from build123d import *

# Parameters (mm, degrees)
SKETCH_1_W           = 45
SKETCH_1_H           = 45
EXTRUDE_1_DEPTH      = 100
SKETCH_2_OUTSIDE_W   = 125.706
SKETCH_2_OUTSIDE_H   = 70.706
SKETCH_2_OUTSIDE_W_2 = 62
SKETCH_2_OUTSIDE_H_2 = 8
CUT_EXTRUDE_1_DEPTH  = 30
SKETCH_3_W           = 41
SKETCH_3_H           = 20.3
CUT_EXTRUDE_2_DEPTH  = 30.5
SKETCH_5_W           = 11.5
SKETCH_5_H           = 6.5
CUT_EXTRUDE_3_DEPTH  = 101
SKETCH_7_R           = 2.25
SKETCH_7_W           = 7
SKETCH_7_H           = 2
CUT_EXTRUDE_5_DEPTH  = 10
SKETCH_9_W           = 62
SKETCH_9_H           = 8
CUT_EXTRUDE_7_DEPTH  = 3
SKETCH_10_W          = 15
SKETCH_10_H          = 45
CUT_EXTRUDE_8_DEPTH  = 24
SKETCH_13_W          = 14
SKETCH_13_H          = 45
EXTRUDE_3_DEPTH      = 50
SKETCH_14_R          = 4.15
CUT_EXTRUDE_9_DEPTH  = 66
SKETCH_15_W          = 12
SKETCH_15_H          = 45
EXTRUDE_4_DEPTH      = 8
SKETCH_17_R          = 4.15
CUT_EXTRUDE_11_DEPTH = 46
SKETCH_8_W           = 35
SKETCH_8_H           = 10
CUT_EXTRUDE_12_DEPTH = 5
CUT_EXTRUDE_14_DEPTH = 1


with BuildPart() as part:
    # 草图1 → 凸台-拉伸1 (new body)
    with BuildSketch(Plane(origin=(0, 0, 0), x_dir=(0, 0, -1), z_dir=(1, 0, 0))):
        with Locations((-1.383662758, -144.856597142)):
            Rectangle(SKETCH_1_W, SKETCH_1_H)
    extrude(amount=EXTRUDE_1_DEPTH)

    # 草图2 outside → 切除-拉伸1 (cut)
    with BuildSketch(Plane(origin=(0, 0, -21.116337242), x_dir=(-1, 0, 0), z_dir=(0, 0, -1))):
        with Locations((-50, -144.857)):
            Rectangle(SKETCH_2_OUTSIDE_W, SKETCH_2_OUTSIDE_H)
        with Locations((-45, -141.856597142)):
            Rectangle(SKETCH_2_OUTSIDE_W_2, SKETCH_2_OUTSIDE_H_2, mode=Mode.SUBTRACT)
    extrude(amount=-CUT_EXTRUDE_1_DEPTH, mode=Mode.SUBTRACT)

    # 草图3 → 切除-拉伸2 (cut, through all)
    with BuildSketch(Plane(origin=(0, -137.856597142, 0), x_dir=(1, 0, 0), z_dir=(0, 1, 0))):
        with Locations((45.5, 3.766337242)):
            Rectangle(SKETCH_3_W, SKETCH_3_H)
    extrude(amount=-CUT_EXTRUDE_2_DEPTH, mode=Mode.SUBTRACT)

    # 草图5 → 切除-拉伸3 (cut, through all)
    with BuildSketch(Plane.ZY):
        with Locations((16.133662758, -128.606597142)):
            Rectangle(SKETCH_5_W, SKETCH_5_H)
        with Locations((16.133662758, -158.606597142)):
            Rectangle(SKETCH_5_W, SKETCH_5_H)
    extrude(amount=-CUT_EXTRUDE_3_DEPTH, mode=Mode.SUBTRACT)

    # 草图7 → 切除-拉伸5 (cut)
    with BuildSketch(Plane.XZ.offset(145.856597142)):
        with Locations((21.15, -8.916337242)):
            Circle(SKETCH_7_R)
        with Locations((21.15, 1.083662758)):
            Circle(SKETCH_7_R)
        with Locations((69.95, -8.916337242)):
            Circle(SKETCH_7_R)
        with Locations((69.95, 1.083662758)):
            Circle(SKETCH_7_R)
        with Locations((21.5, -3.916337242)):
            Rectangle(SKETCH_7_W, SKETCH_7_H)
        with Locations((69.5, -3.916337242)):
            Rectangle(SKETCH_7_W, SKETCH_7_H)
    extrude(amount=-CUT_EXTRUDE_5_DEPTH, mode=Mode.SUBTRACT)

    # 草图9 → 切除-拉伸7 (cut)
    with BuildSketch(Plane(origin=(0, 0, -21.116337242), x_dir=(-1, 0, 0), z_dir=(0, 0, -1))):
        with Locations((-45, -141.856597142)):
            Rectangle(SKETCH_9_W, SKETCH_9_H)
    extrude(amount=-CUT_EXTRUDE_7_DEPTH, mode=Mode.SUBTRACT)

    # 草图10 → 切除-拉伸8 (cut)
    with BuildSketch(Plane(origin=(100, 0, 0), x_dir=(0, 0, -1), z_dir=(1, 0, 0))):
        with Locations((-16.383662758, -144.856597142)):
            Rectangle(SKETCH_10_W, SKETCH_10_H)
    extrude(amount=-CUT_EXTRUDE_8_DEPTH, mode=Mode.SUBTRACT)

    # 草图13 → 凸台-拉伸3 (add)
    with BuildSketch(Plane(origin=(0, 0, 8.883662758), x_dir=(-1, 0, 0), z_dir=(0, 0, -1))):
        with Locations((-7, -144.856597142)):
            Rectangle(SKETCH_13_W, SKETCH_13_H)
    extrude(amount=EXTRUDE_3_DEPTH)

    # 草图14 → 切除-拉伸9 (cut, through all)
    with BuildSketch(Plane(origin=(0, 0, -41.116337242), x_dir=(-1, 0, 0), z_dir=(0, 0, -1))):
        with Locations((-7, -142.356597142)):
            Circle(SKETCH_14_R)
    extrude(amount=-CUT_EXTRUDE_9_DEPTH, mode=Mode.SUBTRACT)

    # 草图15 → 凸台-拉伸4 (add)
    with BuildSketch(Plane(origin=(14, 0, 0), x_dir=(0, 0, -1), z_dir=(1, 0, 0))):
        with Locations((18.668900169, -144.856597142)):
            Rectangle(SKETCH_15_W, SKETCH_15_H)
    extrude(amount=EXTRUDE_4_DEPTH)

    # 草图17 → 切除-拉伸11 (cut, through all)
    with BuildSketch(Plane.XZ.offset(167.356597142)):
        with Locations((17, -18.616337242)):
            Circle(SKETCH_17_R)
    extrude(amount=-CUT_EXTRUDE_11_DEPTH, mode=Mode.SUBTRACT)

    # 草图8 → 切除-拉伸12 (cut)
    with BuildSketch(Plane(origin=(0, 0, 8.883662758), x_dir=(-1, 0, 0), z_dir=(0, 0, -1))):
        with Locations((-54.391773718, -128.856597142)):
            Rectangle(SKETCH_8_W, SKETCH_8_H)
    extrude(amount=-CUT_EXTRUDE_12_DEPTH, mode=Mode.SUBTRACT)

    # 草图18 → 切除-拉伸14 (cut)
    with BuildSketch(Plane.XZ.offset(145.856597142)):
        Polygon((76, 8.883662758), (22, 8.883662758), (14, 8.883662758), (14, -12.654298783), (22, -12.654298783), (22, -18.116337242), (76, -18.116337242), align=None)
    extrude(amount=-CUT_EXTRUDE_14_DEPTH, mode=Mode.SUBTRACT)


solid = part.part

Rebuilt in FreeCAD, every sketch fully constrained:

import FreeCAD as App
import Part
import Sketcher

doc = App.newDocument("Part")
params = doc.addObject("Spreadsheet::Sheet", "Params")
for row, (alias, value) in enumerate([
    ("sketch1_width", "45 mm"),
    ("pad1_length", "100 mm"),
    ("sketch2_width", "62 mm"),
    ("sketch2_height", "8 mm"),
    ("pocket1_length", "30 mm"),
    ("sketch3_width", "41 mm"),
    ("sketch3_height", "20.3 mm"),
    ("sketch4_width", "6.5 mm"),
    ("sketch4_height", "11.5 mm"),
    ("sketch5_diameter", "4.5 mm"),
    ("sketch5_width", "7 mm"),
    ("sketch5_height", "2 mm"),
    ("pocket4_length", "10 mm"),
    ("sketch6_width", "62 mm"),
    ("sketch6_height", "8 mm"),
    ("pocket5_length", "3 mm"),
    ("sketch7_width", "45 mm"),
    ("sketch7_height", "15 mm"),
    ("pocket6_length", "24 mm"),
    ("sketch8_width", "14 mm"),
    ("sketch8_height", "45 mm"),
    ("pad2_length", "50 mm"),
    ("sketch9_diameter", "8.3 mm"),
    ("sketch10_width", "45 mm"),
    ("sketch10_height", "12 mm"),
    ("pad3_length", "8 mm"),
    ("sketch11_diameter", "8.3 mm"),
    ("sketch12_width", "35 mm"),
    ("sketch12_height", "10 mm"),
    ("pocket9_length", "5 mm"),
    ("sketch13_width", "62 mm"),
    ("sketch13_width2", "8 mm"),
    ("sketch13_height", "27 mm"),
    ("pocket10_length", "1 mm"),
], start=1):
    params.set(f"A{row}", alias)
    params.set(f"B{row}", "=" + value)
    params.setAlias(f"B{row}", alias)

body = doc.addObject("PartDesign::Body", "Body")

sketch1 = doc.addObject("Sketcher::SketchObject", "Sketch")
body.addObject(sketch1)
sketch1.AttachmentSupport = (doc.YZ_Plane, [""])
sketch1.MapMode = "FlatFace"
sketch1.addGeometry([
    Part.LineSegment(App.Vector(-122, 24, 0), App.Vector(-167, 24, 0)),
    Part.LineSegment(App.Vector(-167, 24, 0), App.Vector(-167, -21, 0)),
    Part.LineSegment(App.Vector(-167, -21, 0), App.Vector(-122, -21, 0)),
    Part.LineSegment(App.Vector(-122, -21, 0), App.Vector(-122, 24, 0)),
], False)
sketch1.addConstraint([
    Sketcher.Constraint("Coincident", 0, 2, 1, 1),
    Sketcher.Constraint("Coincident", 1, 2, 2, 1),
    Sketcher.Constraint("Coincident", 2, 2, 3, 1),
    Sketcher.Constraint("Coincident", 3, 2, 0, 1),
    Sketcher.Constraint("Horizontal", 0),
    Sketcher.Constraint("Vertical", 1),
    Sketcher.Constraint("Horizontal", 2),
    Sketcher.Constraint("Vertical", 3),
    Sketcher.Constraint("Equal", 2, 1),
    Sketcher.Constraint("DistanceX", 0, 2, 0, 1, 45.0),
    Sketcher.Constraint("DistanceX", 0, 2, -1, 1, 167.356597),
    Sketcher.Constraint("DistanceY", -1, 1, 0, 2, 23.883663),
])
sketch1.setExpression("Constraints[9]", "Params.sketch1_width")
pad1 = doc.addObject("PartDesign::Pad", "Pad")
body.addObject(pad1)
pad1.Profile = sketch1
pad1.setExpression("Length", "Params.pad1_length")

sketch2 = doc.addObject("Sketcher::SketchObject", "Sketch001")
body.addObject(sketch2)
sketch2.AttachmentSupport = (doc.XY_Plane, [""])
sketch2.MapMode = "FlatFace"
sketch2.AttachmentOffset = App.Placement(App.Vector(0, 0, -21.116337), App.Rotation())
sketch2.addGeometry([
    Part.LineSegment(App.Vector(113, -110, 0), App.Vector(113, -180, 0)),
    Part.LineSegment(App.Vector(113, -180, 0), App.Vector(-13, -180, 0)),
    Part.LineSegment(App.Vector(-13, -180, 0), App.Vector(-13, -110, 0)),
    Part.LineSegment(App.Vector(-13, -110, 0), App.Vector(113, -110, 0)),
    Part.LineSegment(App.Vector(14, -146, 0), App.Vector(76, -146, 0)),
    Part.LineSegment(App.Vector(76, -146, 0), App.Vector(76, -138, 0)),
    Part.LineSegment(App.Vector(76, -138, 0), App.Vector(14, -138, 0)),
    Part.LineSegment(App.Vector(14, -138, 0), App.Vector(14, -146, 0)),
], False)
sketch2.addConstraint([
    Sketcher.Constraint("Coincident", 0, 2, 1, 1),
    Sketcher.Constraint("Coincident", 1, 2, 2, 1),
    Sketcher.Constraint("Coincident", 2, 2, 3, 1),
    Sketcher.Constraint("Coincident", 3, 2, 0, 1),
    Sketcher.Constraint("Coincident", 4, 2, 5, 1),
    Sketcher.Constraint("Coincident", 5, 2, 6, 1),
    Sketcher.Constraint("Coincident", 6, 2, 7, 1),
    Sketcher.Constraint("Coincident", 7, 2, 4, 1),
    Sketcher.Constraint("Vertical", 0),
    Sketcher.Constraint("Horizontal", 1),
    Sketcher.Constraint("Vertical", 2),
    Sketcher.Constraint("Horizontal", 3),
    Sketcher.Constraint("Horizontal", 4),
    Sketcher.Constraint("Vertical", 5),
    Sketcher.Constraint("Horizontal", 6),
    Sketcher.Constraint("Vertical", 7),
    Sketcher.Constraint("DistanceX", 4, 1, 4, 2, 62.0),
    Sketcher.Constraint("DistanceY", 5, 1, 5, 2, 8.0),
    Sketcher.Constraint("DistanceX", -1, 1, 4, 2, 76.0),
    Sketcher.Constraint("DistanceX", 1, 2, 1, 1, 125.706),
    Sketcher.Constraint("DistanceY", 0, 2, 0, 1, 70.706),
    Sketcher.Constraint("DistanceY", 0, 2, -1, 1, 180.21),
    Sketcher.Constraint("DistanceX", -1, 1, 0, 2, 112.853),
    Sketcher.Constraint("DistanceY", 4, 2, -1, 1, 145.856597),
])
sketch2.setExpression("Constraints[16]", "Params.sketch2_width")
sketch2.setExpression("Constraints[17]", "Params.sketch2_height")
pocket1 = doc.addObject("PartDesign::Pocket", "Pocket")
body.addObject(pocket1)
pocket1.Profile = sketch2
pocket1.setExpression("Length", "Params.pocket1_length")
pocket1.Reversed = True

sketch3 = doc.addObject("Sketcher::SketchObject", "Sketch002")
body.addObject(sketch3)
sketch3.AttachmentSupport = (doc.XZ_Plane, [""])
sketch3.MapMode = "FlatFace"
sketch3.AttachmentOffset = App.Placement(App.Vector(0, 0, 137.856597), App.Rotation())
sketch3.addGeometry([
    Part.LineSegment(App.Vector(25, -14, 0), App.Vector(25, 6, 0)),
    Part.LineSegment(App.Vector(25, 6, 0), App.Vector(66, 6, 0)),
    Part.LineSegment(App.Vector(66, 6, 0), App.Vector(66, -14, 0)),
    Part.LineSegment(App.Vector(66, -14, 0), App.Vector(25, -14, 0)),
], False)
sketch3.addConstraint([
    Sketcher.Constraint("Coincident", 0, 2, 1, 1),
    Sketcher.Constraint("Coincident", 1, 2, 2, 1),
    Sketcher.Constraint("Coincident", 2, 2, 3, 1),
    Sketcher.Constraint("Coincident", 3, 2, 0, 1),
    Sketcher.Constraint("Vertical", 0),
    Sketcher.Constraint("Horizontal", 1),
    Sketcher.Constraint("Vertical", 2),
    Sketcher.Constraint("Horizontal", 3),
    Sketcher.Constraint("DistanceX", 1, 1, 1, 2, 41.0),
    Sketcher.Constraint("DistanceY", 0, 1, 0, 2, 20.3),
    Sketcher.Constraint("DistanceX", -1, 1, 0, 2, 25.0),
    Sketcher.Constraint("DistanceY", -1, 1, 0, 2, 6.383663),
])
sketch3.setExpression("Constraints[8]", "Params.sketch3_width")
sketch3.setExpression("Constraints[9]", "Params.sketch3_height")
pocket2 = doc.addObject("PartDesign::Pocket", "Pocket001")
body.addObject(pocket2)
pocket2.Profile = sketch3
pocket2.Type = "ThroughAll"
pocket2.Reversed = True

sketch4 = doc.addObject("Sketcher::SketchObject", "Sketch003")
body.addObject(sketch4)
sketch4.AttachmentSupport = (doc.YZ_Plane, [""])
sketch4.MapMode = "FlatFace"
sketch4.addGeometry([
    Part.LineSegment(App.Vector(-125, 10, 0), App.Vector(-132, 10, 0)),
    Part.LineSegment(App.Vector(-132, 10, 0), App.Vector(-132, 22, 0)),
    Part.LineSegment(App.Vector(-132, 22, 0), App.Vector(-125, 22, 0)),
    Part.LineSegment(App.Vector(-125, 22, 0), App.Vector(-125, 10, 0)),
    Part.LineSegment(App.Vector(-155, 10, 0), App.Vector(-162, 10, 0)),
    Part.LineSegment(App.Vector(-162, 10, 0), App.Vector(-162, 22, 0)),
    Part.LineSegment(App.Vector(-162, 22, 0), App.Vector(-155, 22, 0)),
    Part.LineSegment(App.Vector(-155, 22, 0), App.Vector(-155, 10, 0)),
], False)
sketch4.addConstraint([
    Sketcher.Constraint("Coincident", 0, 2, 1, 1),
    Sketcher.Constraint("Coincident", 1, 2, 2, 1),
    Sketcher.Constraint("Coincident", 2, 2, 3, 1),
    Sketcher.Constraint("Coincident", 3, 2, 0, 1),
    Sketcher.Constraint("Coincident", 4, 2, 5, 1),
    Sketcher.Constraint("Coincident", 5, 2, 6, 1),
    Sketcher.Constraint("Coincident", 6, 2, 7, 1),
    Sketcher.Constraint("Coincident", 7, 2, 4, 1),
    Sketcher.Constraint("Horizontal", 0),
    Sketcher.Constraint("Vertical", 1),
    Sketcher.Constraint("Horizontal", 2),
    Sketcher.Constraint("Vertical", 3),
    Sketcher.Constraint("Horizontal", 4),
    Sketcher.Constraint("Vertical", 5),
    Sketcher.Constraint("Horizontal", 6),
    Sketcher.Constraint("Vertical", 7),
    Sketcher.Constraint("Horizontal", 3, 2, 4, 2),
    Sketcher.Constraint("Horizontal", 2, 2, 5, 2),
    Sketcher.Constraint("Equal", 2, 4),
    Sketcher.Constraint("DistanceX", 0, 2, 0, 1, 6.5),
    Sketcher.Constraint("DistanceY", 1, 1, 1, 2, 11.5),
    Sketcher.Constraint("DistanceX", 4, 2, 0, 2, 30.0),
    Sketcher.Constraint("DistanceX", 0, 2, -1, 1, 131.856597),
    Sketcher.Constraint("DistanceY", -1, 1, 0, 2, 10.383663),
])
sketch4.setExpression("Constraints[19]", "Params.sketch4_width")
sketch4.setExpression("Constraints[20]", "Params.sketch4_height")
pocket3 = doc.addObject("PartDesign::Pocket", "Pocket002")
body.addObject(pocket3)
pocket3.Profile = sketch4
pocket3.Type = "ThroughAll"
pocket3.Reversed = True

sketch5 = doc.addObject("Sketcher::SketchObject", "Sketch004")
body.addObject(sketch5)
sketch5.AttachmentSupport = (doc.XZ_Plane, [""])
sketch5.MapMode = "FlatFace"
sketch5.AttachmentOffset = App.Placement(App.Vector(0, 0, 145.856597), App.Rotation())
sketch5.addGeometry([
    Part.Circle(App.Vector(21.1, -8.9, 0), App.Vector(0, 0, 1), 2.2),
    Part.Circle(App.Vector(21.1, 1.1, 0), App.Vector(0, 0, 1), 2.2),
    Part.Circle(App.Vector(70, -8.9, 0), App.Vector(0, 0, 1), 2.2),
    Part.Circle(App.Vector(70, 1.1, 0), App.Vector(0, 0, 1), 2.2),
    Part.LineSegment(App.Vector(18, -2.9, 0), App.Vector(18, -4.9, 0)),
    Part.LineSegment(App.Vector(18, -4.9, 0), App.Vector(25, -4.9, 0)),
    Part.LineSegment(App.Vector(25, -4.9, 0), App.Vector(25, -2.9, 0)),
    Part.LineSegment(App.Vector(25, -2.9, 0), App.Vector(18, -2.9, 0)),
    Part.LineSegment(App.Vector(66, -2.9, 0), App.Vector(66, -4.9, 0)),
    Part.LineSegment(App.Vector(66, -4.9, 0), App.Vector(73, -4.9, 0)),
    Part.LineSegment(App.Vector(73, -4.9, 0), App.Vector(73, -2.9, 0)),
    Part.LineSegment(App.Vector(73, -2.9, 0), App.Vector(66, -2.9, 0)),
], False)
sketch5.addConstraint([
    Sketcher.Constraint("Coincident", 4, 2, 5, 1),
    Sketcher.Constraint("Coincident", 5, 2, 6, 1),
    Sketcher.Constraint("Coincident", 6, 2, 7, 1),
    Sketcher.Constraint("Coincident", 7, 2, 4, 1),
    Sketcher.Constraint("Coincident", 8, 2, 9, 1),
    Sketcher.Constraint("Coincident", 9, 2, 10, 1),
    Sketcher.Constraint("Coincident", 10, 2, 11, 1),
    Sketcher.Constraint("Coincident", 11, 2, 8, 1),
    Sketcher.Constraint("Vertical", 4),
    Sketcher.Constraint("Horizontal", 5),
    Sketcher.Constraint("Vertical", 6),
    Sketcher.Constraint("Horizontal", 7),
    Sketcher.Constraint("Vertical", 8),
    Sketcher.Constraint("Horizontal", 9),
    Sketcher.Constraint("Vertical", 10),
    Sketcher.Constraint("Horizontal", 11),
    Sketcher.Constraint("Equal", 0, 1),
    Sketcher.Constraint("Equal", 1, 2),
    Sketcher.Constraint("Equal", 2, 3),
    Sketcher.Constraint("Horizontal", 0, 3, 2, 3),
    Sketcher.Constraint("Horizontal", 1, 3, 3, 3),
    Sketcher.Constraint("Horizontal", 5, 2, 8, 2),
    Sketcher.Constraint("Horizontal", 7, 2, 10, 2),
    Sketcher.Constraint("Vertical", 0, 3, 1, 3),
    Sketcher.Constraint("Vertical", 2, 3, 3, 3),
    Sketcher.Constraint("Equal", 7, 9),
    Sketcher.Constraint("Diameter", 0, 4.5),
    Sketcher.Constraint("DistanceX", 5, 1, 5, 2, 7.0),
    Sketcher.Constraint("DistanceY", 4, 2, 4, 1, 2.0),
    Sketcher.Constraint("DistanceX", -1, 1, 4, 2, 18.0),
    Sketcher.Constraint("DistanceX", -1, 1, 8, 2, 66.0),
    Sketcher.Constraint("DistanceY", 0, 3, 1, 3, 10.0),
    Sketcher.Constraint("DistanceY", 0, 3, 4, 2, 4.0),
    Sketcher.Constraint("DistanceX", 0, 3, 2, 3, 48.8),
    Sketcher.Constraint("DistanceX", -1, 1, 0, 3, 21.15),
    Sketcher.Constraint("DistanceY", 0, 3, -1, 1, 8.916337),
])
sketch5.setExpression("Constraints[26]", "Params.sketch5_diameter")
sketch5.setExpression("Constraints[27]", "Params.sketch5_width")
sketch5.setExpression("Constraints[28]", "Params.sketch5_height")
pocket4 = doc.addObject("PartDesign::Pocket", "Pocket003")
body.addObject(pocket4)
pocket4.Profile = sketch5
pocket4.setExpression("Length", "Params.pocket4_length")

sketch6 = doc.addObject("Sketcher::SketchObject", "Sketch005")
body.addObject(sketch6)
sketch6.AttachmentSupport = (doc.XY_Plane, [""])
sketch6.MapMode = "FlatFace"
sketch6.AttachmentOffset = App.Placement(App.Vector(0, 0, -21.116337), App.Rotation())
sketch6.addGeometry([
    Part.LineSegment(App.Vector(76, -138, 0), App.Vector(76, -146, 0)),
    Part.LineSegment(App.Vector(76, -146, 0), App.Vector(14, -146, 0)),
    Part.LineSegment(App.Vector(14, -146, 0), App.Vector(14, -138, 0)),
    Part.LineSegment(App.Vector(14, -138, 0), App.Vector(76, -138, 0)),
], False)
sketch6.addConstraint([
    Sketcher.Constraint("Coincident", 0, 2, 1, 1),
    Sketcher.Constraint("Coincident", 1, 2, 2, 1),
    Sketcher.Constraint("Coincident", 2, 2, 3, 1),
    Sketcher.Constraint("Coincident", 3, 2, 0, 1),
    Sketcher.Constraint("Vertical", 0),
    Sketcher.Constraint("Horizontal", 1),
    Sketcher.Constraint("Vertical", 2),
    Sketcher.Constraint("Horizontal", 3),
    Sketcher.Constraint("DistanceX", 1, 2, 1, 1, 62.0),
    Sketcher.Constraint("DistanceY", 0, 2, 0, 1, 8.0),
    Sketcher.Constraint("DistanceX", -1, 1, 0, 2, 76.0),
    Sketcher.Constraint("DistanceY", 0, 2, -1, 1, 145.856597),
])
sketch6.setExpression("Constraints[8]", "Params.sketch6_width")
sketch6.setExpression("Constraints[9]", "Params.sketch6_height")
pocket5 = doc.addObject("PartDesign::Pocket", "Pocket004")
body.addObject(pocket5)
pocket5.Profile = sketch6
pocket5.setExpression("Length", "Params.pocket5_length")
pocket5.Reversed = True

sketch7 = doc.addObject("Sketcher::SketchObject", "Sketch006")
body.addObject(sketch7)
sketch7.AttachmentSupport = (doc.YZ_Plane, [""])
sketch7.MapMode = "FlatFace"
sketch7.AttachmentOffset = App.Placement(App.Vector(0, 0, 100), App.Rotation())
sketch7.addGeometry([
    Part.LineSegment(App.Vector(-122, 24, 0), App.Vector(-167, 24, 0)),
    Part.LineSegment(App.Vector(-167, 24, 0), App.Vector(-167, 9, 0)),
    Part.LineSegment(App.Vector(-167, 9, 0), App.Vector(-122, 9, 0)),
    Part.LineSegment(App.Vector(-122, 9, 0), App.Vector(-122, 24, 0)),
], False)
sketch7.addConstraint([
    Sketcher.Constraint("Coincident", 0, 2, 1, 1),
    Sketcher.Constraint("Coincident", 1, 2, 2, 1),
    Sketcher.Constraint("Coincident", 2, 2, 3, 1),
    Sketcher.Constraint("Coincident", 3, 2, 0, 1),
    Sketcher.Constraint("Horizontal", 0),
    Sketcher.Constraint("Vertical", 1),
    Sketcher.Constraint("Horizontal", 2),
    Sketcher.Constraint("Vertical", 3),
    Sketcher.Constraint("DistanceX", 0, 2, 0, 1, 45.0),
    Sketcher.Constraint("DistanceY", 1, 2, 1, 1, 15.0),
    Sketcher.Constraint("DistanceX", 0, 2, -1, 1, 167.356597),
    Sketcher.Constraint("DistanceY", -1, 1, 0, 2, 23.883663),
])
sketch7.setExpression("Constraints[8]", "Params.sketch7_width")
sketch7.setExpression("Constraints[9]", "Params.sketch7_height")
pocket6 = doc.addObject("PartDesign::Pocket", "Pocket005")
body.addObject(pocket6)
pocket6.Profile = sketch7
pocket6.setExpression("Length", "Params.pocket6_length")

sketch8 = doc.addObject("Sketcher::SketchObject", "Sketch007")
body.addObject(sketch8)
sketch8.AttachmentSupport = (doc.XY_Plane, [""])
sketch8.MapMode = "FlatFace"
sketch8.AttachmentOffset = App.Placement(App.Vector(0, 0, 8.883663), App.Rotation())
sketch8.addGeometry([
    Part.LineSegment(App.Vector(14, -122, 0), App.Vector(14, -167, 0)),
    Part.LineSegment(App.Vector(14, -167, 0), App.Vector(0, -167, 0)),
    Part.LineSegment(App.Vector(0, -167, 0), App.Vector(0, -122, 0)),
    Part.LineSegment(App.Vector(0, -122, 0), App.Vector(14, -122, 0)),
], False)
sketch8.addConstraint([
    Sketcher.Constraint("Coincident", 0, 2, 1, 1),
    Sketcher.Constraint("Coincident", 1, 2, 2, 1),
    Sketcher.Constraint("Coincident", 2, 2, 3, 1),
    Sketcher.Constraint("Coincident", 3, 2, 0, 1),
    Sketcher.Constraint("Vertical", 0),
    Sketcher.Constraint("Horizontal", 1),
    Sketcher.Constraint("Vertical", 2),
    Sketcher.Constraint("Horizontal", 3),
    Sketcher.Constraint("PointOnObject", 1, 2, -2),
    Sketcher.Constraint("DistanceX", 1, 2, 1, 1, 14.0),
    Sketcher.Constraint("DistanceY", 0, 2, 0, 1, 45.0),
    Sketcher.Constraint("DistanceY", 0, 2, -1, 1, 167.356597),
])
sketch8.setExpression("Constraints[9]", "Params.sketch8_width")
sketch8.setExpression("Constraints[10]", "Params.sketch8_height")
pad2 = doc.addObject("PartDesign::Pad", "Pad001")
body.addObject(pad2)
pad2.Profile = sketch8
pad2.setExpression("Length", "Params.pad2_length")
pad2.Reversed = True

sketch9 = doc.addObject("Sketcher::SketchObject", "Sketch008")
body.addObject(sketch9)
sketch9.AttachmentSupport = (doc.XY_Plane, [""])
sketch9.MapMode = "FlatFace"
sketch9.AttachmentOffset = App.Placement(App.Vector(0, 0, -41.116337), App.Rotation())
sketch9.addGeometry(Part.Circle(App.Vector(7, -142.4, 0), App.Vector(0, 0, 1), 4.2), False)
sketch9.addConstraint([
    Sketcher.Constraint("Diameter", 0, 8.3),
    Sketcher.Constraint("DistanceX", -1, 1, 0, 3, 7.0),
    Sketcher.Constraint("DistanceY", 0, 3, -1, 1, 142.356597),
])
sketch9.setExpression("Constraints[0]", "Params.sketch9_diameter")
pocket7 = doc.addObject("PartDesign::Pocket", "Pocket006")
body.addObject(pocket7)
pocket7.Profile = sketch9
pocket7.Type = "ThroughAll"
pocket7.Reversed = True

sketch10 = doc.addObject("Sketcher::SketchObject", "Sketch009")
body.addObject(sketch10)
sketch10.AttachmentSupport = (doc.YZ_Plane, [""])
sketch10.MapMode = "FlatFace"
sketch10.AttachmentOffset = App.Placement(App.Vector(0, 0, 14), App.Rotation())
sketch10.addGeometry([
    Part.LineSegment(App.Vector(-122, -13, 0), App.Vector(-167, -13, 0)),
    Part.LineSegment(App.Vector(-167, -13, 0), App.Vector(-167, -25, 0)),
    Part.LineSegment(App.Vector(-167, -25, 0), App.Vector(-122, -25, 0)),
    Part.LineSegment(App.Vector(-122, -25, 0), App.Vector(-122, -13, 0)),
], False)
sketch10.addConstraint([
    Sketcher.Constraint("Coincident", 0, 2, 1, 1),
    Sketcher.Constraint("Coincident", 1, 2, 2, 1),
    Sketcher.Constraint("Coincident", 2, 2, 3, 1),
    Sketcher.Constraint("Coincident", 3, 2, 0, 1),
    Sketcher.Constraint("Horizontal", 0),
    Sketcher.Constraint("Vertical", 1),
    Sketcher.Constraint("Horizontal", 2),
    Sketcher.Constraint("Vertical", 3),
    Sketcher.Constraint("DistanceX", 0, 2, 0, 1, 45.0),
    Sketcher.Constraint("DistanceY", 1, 2, 1, 1, 12.0),
    Sketcher.Constraint("DistanceY", 0, 2, -1, 1, 12.6689),
    Sketcher.Constraint("DistanceX", 0, 2, -1, 1, 167.356597),
])
sketch10.setExpression("Constraints[8]", "Params.sketch10_width")
sketch10.setExpression("Constraints[9]", "Params.sketch10_height")
pad3 = doc.addObject("PartDesign::Pad", "Pad002")
body.addObject(pad3)
pad3.Profile = sketch10
pad3.setExpression("Length", "Params.pad3_length")

sketch11 = doc.addObject("Sketcher::SketchObject", "Sketch010")
body.addObject(sketch11)
sketch11.AttachmentSupport = (doc.XZ_Plane, [""])
sketch11.MapMode = "FlatFace"
sketch11.AttachmentOffset = App.Placement(App.Vector(0, 0, 167.356597), App.Rotation())
sketch11.addGeometry(Part.Circle(App.Vector(17, -18.6, 0), App.Vector(0, 0, 1), 4.2), False)
sketch11.addConstraint([
    Sketcher.Constraint("Diameter", 0, 8.3),
    Sketcher.Constraint("DistanceX", -1, 1, 0, 3, 17.0),
    Sketcher.Constraint("DistanceY", 0, 3, -1, 1, 18.616337),
])
sketch11.setExpression("Constraints[0]", "Params.sketch11_diameter")
pocket8 = doc.addObject("PartDesign::Pocket", "Pocket007")
body.addObject(pocket8)
pocket8.Profile = sketch11
pocket8.Type = "ThroughAll"

sketch12 = doc.addObject("Sketcher::SketchObject", "Sketch011")
body.addObject(sketch12)
sketch12.AttachmentSupport = (doc.XY_Plane, [""])
sketch12.MapMode = "FlatFace"
sketch12.AttachmentOffset = App.Placement(App.Vector(0, 0, 8.883663), App.Rotation())
sketch12.addGeometry([
    Part.LineSegment(App.Vector(72, -124, 0), App.Vector(72, -134, 0)),
    Part.LineSegment(App.Vector(72, -134, 0), App.Vector(37, -134, 0)),
    Part.LineSegment(App.Vector(37, -134, 0), App.Vector(37, -124, 0)),
    Part.LineSegment(App.Vector(37, -124, 0), App.Vector(72, -124, 0)),
], False)
sketch12.addConstraint([
    Sketcher.Constraint("Coincident", 0, 2, 1, 1),
    Sketcher.Constraint("Coincident", 1, 2, 2, 1),
    Sketcher.Constraint("Coincident", 2, 2, 3, 1),
    Sketcher.Constraint("Coincident", 3, 2, 0, 1),
    Sketcher.Constraint("Vertical", 0),
    Sketcher.Constraint("Horizontal", 1),
    Sketcher.Constraint("Vertical", 2),
    Sketcher.Constraint("Horizontal", 3),
    Sketcher.Constraint("DistanceX", 1, 2, 1, 1, 35.0),
    Sketcher.Constraint("DistanceY", 0, 2, 0, 1, 10.0),
    Sketcher.Constraint("DistanceX", -1, 1, 0, 2, 71.891774),
    Sketcher.Constraint("DistanceY", 0, 2, -1, 1, 133.856597),
])
sketch12.setExpression("Constraints[8]", "Params.sketch12_width")
sketch12.setExpression("Constraints[9]", "Params.sketch12_height")
pocket9 = doc.addObject("PartDesign::Pocket", "Pocket008")
body.addObject(pocket9)
pocket9.Profile = sketch12
pocket9.setExpression("Length", "Params.pocket9_length")
pocket9.Reversed = True

sketch13 = doc.addObject("Sketcher::SketchObject", "Sketch012")
body.addObject(sketch13)
sketch13.AttachmentSupport = (doc.XZ_Plane, [""])
sketch13.MapMode = "FlatFace"
sketch13.AttachmentOffset = App.Placement(App.Vector(0, 0, 145.856597), App.Rotation())
sketch13.addGeometry([
    Part.LineSegment(App.Vector(76, 9, 0), App.Vector(14, 9, 0)),
    Part.LineSegment(App.Vector(14, 9, 0), App.Vector(14, -13, 0)),
    Part.LineSegment(App.Vector(14, -13, 0), App.Vector(22, -13, 0)),
    Part.LineSegment(App.Vector(22, -13, 0), App.Vector(22, -18, 0)),
    Part.LineSegment(App.Vector(22, -18, 0), App.Vector(76, -18, 0)),
    Part.LineSegment(App.Vector(76, -18, 0), App.Vector(76, 9, 0)),
], False)
sketch13.addConstraint([
    Sketcher.Constraint("Coincident", 0, 2, 1, 1),
    Sketcher.Constraint("Coincident", 1, 2, 2, 1),
    Sketcher.Constraint("Coincident", 2, 2, 3, 1),
    Sketcher.Constraint("Coincident", 3, 2, 4, 1),
    Sketcher.Constraint("Coincident", 4, 2, 5, 1),
    Sketcher.Constraint("Coincident", 5, 2, 0, 1),
    Sketcher.Constraint("Horizontal", 0),
    Sketcher.Constraint("Vertical", 1),
    Sketcher.Constraint("Horizontal", 2),
    Sketcher.Constraint("Vertical", 3),
    Sketcher.Constraint("Horizontal", 4),
    Sketcher.Constraint("Vertical", 5),
    Sketcher.Constraint("DistanceX", 0, 2, 0, 1, 62.0),
    Sketcher.Constraint("DistanceX", 2, 1, 2, 2, 8.0),
    Sketcher.Constraint("DistanceY", 5, 1, 5, 2, 27.0),
    Sketcher.Constraint("DistanceX", -1, 1, 0, 2, 14.0),
    Sketcher.Constraint("DistanceY", 1, 2, 1, 1, 21.537962),
    Sketcher.Constraint("DistanceY", 1, 2, -1, 1, 12.654299),
])
sketch13.setExpression("Constraints[12]", "Params.sketch13_width")
sketch13.setExpression("Constraints[13]", "Params.sketch13_width2")
sketch13.setExpression("Constraints[14]", "Params.sketch13_height")
pocket10 = doc.addObject("PartDesign::Pocket", "Pocket009")
body.addObject(pocket10)
pocket10.Profile = sketch13
pocket10.setExpression("Length", "Params.pocket10_length")

doc.recompute()
